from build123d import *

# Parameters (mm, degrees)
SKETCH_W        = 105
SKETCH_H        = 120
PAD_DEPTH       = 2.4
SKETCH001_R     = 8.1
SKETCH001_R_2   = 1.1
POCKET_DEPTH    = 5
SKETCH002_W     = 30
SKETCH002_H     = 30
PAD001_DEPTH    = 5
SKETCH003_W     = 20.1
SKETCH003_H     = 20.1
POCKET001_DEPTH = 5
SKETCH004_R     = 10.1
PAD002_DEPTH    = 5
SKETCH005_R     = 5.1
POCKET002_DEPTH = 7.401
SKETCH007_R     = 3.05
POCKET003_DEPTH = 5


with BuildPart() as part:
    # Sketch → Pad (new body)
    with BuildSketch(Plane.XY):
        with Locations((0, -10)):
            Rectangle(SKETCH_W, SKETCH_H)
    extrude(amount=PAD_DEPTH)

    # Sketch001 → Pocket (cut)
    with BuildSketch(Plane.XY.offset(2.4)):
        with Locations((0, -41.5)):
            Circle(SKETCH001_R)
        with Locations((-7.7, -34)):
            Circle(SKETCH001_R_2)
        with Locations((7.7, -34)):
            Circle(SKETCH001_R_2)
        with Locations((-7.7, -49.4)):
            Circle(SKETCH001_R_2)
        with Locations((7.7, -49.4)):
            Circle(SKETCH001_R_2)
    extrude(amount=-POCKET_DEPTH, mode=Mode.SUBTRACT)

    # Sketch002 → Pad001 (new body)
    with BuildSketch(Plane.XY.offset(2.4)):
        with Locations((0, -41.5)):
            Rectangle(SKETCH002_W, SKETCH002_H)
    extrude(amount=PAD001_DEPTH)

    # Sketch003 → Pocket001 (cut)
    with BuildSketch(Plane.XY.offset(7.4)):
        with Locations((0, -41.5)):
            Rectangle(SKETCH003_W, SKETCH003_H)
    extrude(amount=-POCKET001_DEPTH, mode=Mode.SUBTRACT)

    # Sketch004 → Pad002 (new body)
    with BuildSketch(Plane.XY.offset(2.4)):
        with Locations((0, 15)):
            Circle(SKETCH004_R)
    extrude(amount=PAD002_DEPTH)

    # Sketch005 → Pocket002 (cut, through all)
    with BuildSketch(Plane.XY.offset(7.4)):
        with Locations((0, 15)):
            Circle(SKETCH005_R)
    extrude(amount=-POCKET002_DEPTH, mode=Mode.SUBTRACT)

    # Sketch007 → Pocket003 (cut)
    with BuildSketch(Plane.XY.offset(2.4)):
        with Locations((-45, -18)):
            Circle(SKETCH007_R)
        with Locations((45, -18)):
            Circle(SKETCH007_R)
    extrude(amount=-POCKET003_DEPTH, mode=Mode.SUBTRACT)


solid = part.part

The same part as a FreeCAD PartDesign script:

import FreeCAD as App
import Part
import Sketcher
Q = App.Units.Quantity


def add_polygon(sketch, points):
    """Adds a closed chain of lines whose ends are joined by coincident constraints."""
    first, n = sketch.GeometryCount, len(points)
    for a, b in zip(points, points[1:] + points[:1]):
        sketch.addGeometry(Part.LineSegment(App.Vector(*a, 0), App.Vector(*b, 0)), False)
    for i in range(n):
        sketch.addConstraint(Sketcher.Constraint("Coincident", first + i, 2, first + (i + 1) % n, 1))

doc = App.newDocument("Part")
body = doc.addObject("PartDesign::Body", "Body")

sketch1 = doc.addObject("Sketcher::SketchObject", "Sketch")
body.addObject(sketch1)
sketch1.AttachmentSupport = (doc.XY_Plane, [""])
sketch1.MapMode = "FlatFace"
add_polygon(sketch1, [(-52, 50), (-52, -70), (52, -70), (52, 50)])
sketch1.addConstraint([
    Sketcher.Constraint("Vertical", 0),
    Sketcher.Constraint("Horizontal", 1),
    Sketcher.Constraint("Vertical", 2),
    Sketcher.Constraint("Horizontal", 3),
    Sketcher.Constraint("DistanceX", 1, 1, 1, 2, Q("105 mm")),
    Sketcher.Constraint("DistanceY", 0, 2, 0, 1, Q("120 mm")),
    Sketcher.Constraint("DistanceY", 0, 2, -1, 1, Q("70 mm")),
    Sketcher.Constraint("DistanceX", 0, 2, -1, 1, Q("52.5 mm")),
])
pad1 = doc.addObject("PartDesign::Pad", "Pad")
body.addObject(pad1)
pad1.Profile = sketch1
pad1.Length = 2.4

sketch2 = doc.addObject("Sketcher::SketchObject", "Sketch001")
body.addObject(sketch2)
sketch2.AttachmentSupport = (doc.XY_Plane, [""])
sketch2.MapMode = "FlatFace"
sketch2.AttachmentOffset = App.Placement(App.Vector(0, 0, 2.4), App.Rotation())
sketch2.addGeometry([
    Part.Circle(App.Vector(0, -41.5, 0), App.Vector(0, 0, 1), 8.1),
    Part.Circle(App.Vector(-7.7, -34, 0), App.Vector(0, 0, 1), 1.1),
    Part.Circle(App.Vector(7.7, -34, 0), App.Vector(0, 0, 1), 1.1),
    Part.Circle(App.Vector(-7.7, -49.4, 0), App.Vector(0, 0, 1), 1.1),
    Part.Circle(App.Vector(7.7, -49.4, 0), App.Vector(0, 0, 1), 1.1),
], False)
sketch2.addConstraint([
    Sketcher.Constraint("Equal", 1, 2),
    Sketcher.Constraint("Equal", 2, 3),
    Sketcher.Constraint("Equal", 3, 4),
    Sketcher.Constraint("Symmetric", 1, 3, 2, 3, -2),
    Sketcher.Constraint("Symmetric", 3, 3, 4, 3, -2),
    Sketcher.Constraint("PointOnObject", 0, 3, -2),
    Sketcher.Constraint("Vertical", 1, 3, 3, 3),
    Sketcher.Constraint("Diameter", 0, Q("16.2 mm")),
    Sketcher.Constraint("Diameter", 1, Q("2.2 mm")),
    Sketcher.Constraint("DistanceY", 1, 3, -1, 1, Q("34 mm")),
    Sketcher.Constraint("DistanceY", 0, 3, -1, 1, Q("41.5 mm")),
    Sketcher.Constraint("DistanceX", 1, 3, -1, 1, Q("7.7 mm")),
    Sketcher.Constraint("DistanceY", 3, 3, -1, 1, Q("49.4 mm")),
])
pocket1 = doc.addObject("PartDesign::Pocket", "Pocket")
body.addObject(pocket1)
pocket1.Profile = sketch2
pocket1.Length = 5

sketch3 = doc.addObject("Sketcher::SketchObject", "Sketch002")
body.addObject(sketch3)
sketch3.AttachmentSupport = (doc.XY_Plane, [""])
sketch3.MapMode = "FlatFace"
sketch3.AttachmentOffset = App.Placement(App.Vector(0, 0, 2.4), App.Rotation())
add_polygon(sketch3, [(-15, -26), (-15, -56), (15, -56), (15, -26)])
sketch3.addConstraint([
    Sketcher.Constraint("Vertical", 0),
    Sketcher.Constraint("Horizontal", 1),
    Sketcher.Constraint("Vertical", 2),
    Sketcher.Constraint("Horizontal", 3),
    Sketcher.Constraint("Equal", 3, 0),
    Sketcher.Constraint("DistanceX", 1, 1, 1, 2, Q("30 mm")),
    Sketcher.Constraint("DistanceX", 0, 2, -1, 1, Q("15 mm")),
    Sketcher.Constraint("DistanceY", 0, 2, -1, 1, Q("56.5 mm")),
])
pad2 = doc.addObject("PartDesign::Pad", "Pad001")
body.addObject(pad2)
pad2.Profile = sketch3
pad2.Length = 5

sketch4 = doc.addObject("Sketcher::SketchObject", "Sketch003")
body.addObject(sketch4)
sketch4.AttachmentSupport = (doc.XY_Plane, [""])
sketch4.MapMode = "FlatFace"
sketch4.AttachmentOffset = App.Placement(App.Vector(0, 0, 7.4), App.Rotation())
add_polygon(sketch4, [(-10, -31), (-10, -52), (10, -52), (10, -31)])
sketch4.addConstraint([
    Sketcher.Constraint("Vertical", 0),
    Sketcher.Constraint("Horizontal", 1),
    Sketcher.Constraint("Vertical", 2),
    Sketcher.Constraint("Horizontal", 3),
    Sketcher.Constraint("Equal", 3, 0),
    Sketcher.Constraint("DistanceX", 1, 1, 1, 2, Q("20.1 mm")),
    Sketcher.Constraint("DistanceX", 0, 2, -1, 1, Q("10.05 mm")),
    Sketcher.Constraint("DistanceY", 0, 2, -1, 1, Q("51.55 mm")),
])
pocket2 = doc.addObject("PartDesign::Pocket", "Pocket001")
body.addObject(pocket2)
pocket2.Profile = sketch4
pocket2.Length = 5

sketch5 = doc.addObject("Sketcher::SketchObject", "Sketch004")
body.addObject(sketch5)
sketch5.AttachmentSupport = (doc.XY_Plane, [""])
sketch5.MapMode = "FlatFace"
sketch5.AttachmentOffset = App.Placement(App.Vector(0, 0, 2.4), App.Rotation())
sketch5.addGeometry(Part.Circle(App.Vector(0, 15, 0), App.Vector(0, 0, 1), 10), False)
sketch5.addConstraint([
    Sketcher.Constraint("PointOnObject", 0, 3, -2),
    Sketcher.Constraint("Diameter", 0, Q("20.2 mm")),
    Sketcher.Constraint("DistanceY", -1, 1, 0, 3, Q("15 mm")),
])
pad3 = doc.addObject("PartDesign::Pad", "Pad002")
body.addObject(pad3)
pad3.Profile = sketch5
pad3.Length = 5

sketch6 = doc.addObject("Sketcher::SketchObject", "Sketch005")
body.addObject(sketch6)
sketch6.AttachmentSupport = (doc.XY_Plane, [""])
sketch6.MapMode = "FlatFace"
sketch6.AttachmentOffset = App.Placement(App.Vector(0, 0, 7.4), App.Rotation())
sketch6.addGeometry(Part.Circle(App.Vector(0, 15, 0), App.Vector(0, 0, 1), 5), False)
sketch6.addConstraint([
    Sketcher.Constraint("PointOnObject", 0, 3, -2),
    Sketcher.Constraint("Diameter", 0, Q("10.2 mm")),
    Sketcher.Constraint("DistanceY", -1, 1, 0, 3, Q("15 mm")),
])
pocket3 = doc.addObject("PartDesign::Pocket", "Pocket002")
body.addObject(pocket3)
pocket3.Profile = sketch6
pocket3.Type = "ThroughAll"

sketch7 = doc.addObject("Sketcher::SketchObject", "Sketch006")
body.addObject(sketch7)
sketch7.AttachmentSupport = (doc.XY_Plane, [""])
sketch7.MapMode = "FlatFace"
sketch7.AttachmentOffset = App.Placement(App.Vector(0, 0, 2.4), App.Rotation())
sketch7.addGeometry([
    Part.Circle(App.Vector(-45, -18, 0), App.Vector(0, 0, 1), 3),
    Part.Circle(App.Vector(45, -18, 0), App.Vector(0, 0, 1), 3),
], False)
sketch7.addConstraint([
    Sketcher.Constraint("Equal", 0, 1),
    Sketcher.Constraint("Symmetric", 0, 3, 1, 3, -2),
    Sketcher.Constraint("Diameter", 0, Q("6.1 mm")),
    Sketcher.Constraint("DistanceX", 0, 3, -1, 1, Q("45 mm")),
    Sketcher.Constraint("DistanceY", 0, 3, -1, 1, Q("18 mm")),
])
pocket4 = doc.addObject("PartDesign::Pocket", "Pocket003")
body.addObject(pocket4)
pocket4.Profile = sketch7
pocket4.Length = 5

doc.recompute()
